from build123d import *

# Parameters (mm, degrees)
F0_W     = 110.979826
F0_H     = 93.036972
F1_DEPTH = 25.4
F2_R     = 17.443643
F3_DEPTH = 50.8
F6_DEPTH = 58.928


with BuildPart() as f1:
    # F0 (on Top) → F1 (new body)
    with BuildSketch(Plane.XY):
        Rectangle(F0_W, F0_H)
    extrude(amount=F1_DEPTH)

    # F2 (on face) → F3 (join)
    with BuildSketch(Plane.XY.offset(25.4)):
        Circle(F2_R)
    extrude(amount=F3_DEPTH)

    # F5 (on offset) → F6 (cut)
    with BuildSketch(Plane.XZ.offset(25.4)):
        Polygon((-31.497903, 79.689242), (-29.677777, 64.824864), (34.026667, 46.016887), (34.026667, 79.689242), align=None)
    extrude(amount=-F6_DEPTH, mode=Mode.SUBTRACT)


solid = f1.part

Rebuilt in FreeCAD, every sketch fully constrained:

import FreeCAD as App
import Part
import Sketcher
Q = App.Units.Quantity


def add_polygon(sketch, points):
    """Adds a closed chain of lines whose ends are joined by coincident constraints."""
    first, n = sketch.GeometryCount, len(points)
    for a, b in zip(points, points[1:] + points[:1]):
        sketch.addGeometry(Part.LineSegment(App.Vector(*a, 0), App.Vector(*b, 0)), False)
    for i in range(n):
        sketch.addConstraint(Sketcher.Constraint("Coincident", first + i, 2, first + (i + 1) % n, 1))

doc = App.newDocument("Part")
body = doc.addObject("PartDesign::Body", "Body")

# Sketch on XY plane
sketch1 = body.newObject("Sketcher::SketchObject", "Sketch")
sketch1.AttachmentSupport = (doc.getObject("XY_Plane"), [""])
sketch1.MapMode = "FlatFace"
add_polygon(sketch1, [(-55.489913, 46.518486), (-55.489913, -46.518486), (55.489913, -46.518486), (55.489913, 46.518486)])  # lines 0-3
sketch1.addConstraint([
    Sketcher.Constraint("Vertical", 0),
    Sketcher.Constraint("Horizontal", 1),
    Sketcher.Constraint("Vertical", 2),
    Sketcher.Constraint("Horizontal", 3),
    Sketcher.Constraint("Symmetric", 0, 2, 2, 2, -1, 1),
    Sketcher.Constraint("DistanceX", 1, 1, 1, 2, Q("110.979826 mm")),
    Sketcher.Constraint("DistanceY", 0, 2, 0, 1, Q("93.036972 mm")),
])
pad1 = body.newObject("PartDesign::Pad", "Pad")
pad1.Profile = sketch1
pad1.Length = Q("1 in")

# Sketch on XY plane
sketch2 = body.newObject("Sketcher::SketchObject", "Sketch001")
sketch2.AttachmentSupport = (doc.getObject("XY_Plane"), [""])
sketch2.MapMode = "FlatFace"
sketch2.AttachmentOffset = App.Placement(App.Vector(0, 0, 1 * 25.4), App.Rotation())
sketch2.addGeometry(Part.Circle(App.Vector(0, 0, 0), App.Vector(0, 0, 1), 17.443643), False)
sketch2.addConstraint([
    Sketcher.Constraint("Coincident", 0, 3, -1, 1),
    Sketcher.Constraint("Diameter", 0, Q("34.887286 mm")),
])
pad2 = body.newObject("PartDesign::Pad", "Pad001")
pad2.Profile = sketch2
pad2.Length = Q("2 in")

# Sketch on XZ plane
sketch3 = body.newObject("Sketcher::SketchObject", "Sketch002")
sketch3.AttachmentSupport = (doc.getObject("XZ_Plane"), [""])
sketch3.MapMode = "FlatFace"
sketch3.AttachmentOffset = App.Placement(App.Vector(0, 0, 1 * 25.4), App.Rotation())
add_polygon(sketch3, [(-31.497903, 79.689242), (-29.677777, 64.824864), (34.026667, 46.016887), (34.026667, 79.689242)])  # lines 0-3
sketch3.addConstraint([
    Sketcher.Constraint("Vertical", 2),
    Sketcher.Constraint("Horizontal", 3),
    Sketcher.Constraint("Distance", 0, Q("14.9754 mm")),
    Sketcher.Constraint("DistanceX", 3, 2, 3, 1, Q("65.52457 mm")),
    Sketcher.Constraint("Distance", 1, Q("66.422859 mm")),
    Sketcher.Constraint("DistanceY", 2, 1, 2, 2, Q("33.672355 mm")),
    Sketcher.Constraint("DistanceY", -1, 1, 2, 2, Q("79.689242 mm")),
    Sketcher.Constraint("DistanceX", 0, 2, -1, 1, Q("29.677777 mm")),
])
pocket1 = body.newObject("PartDesign::Pocket", "Pocket")
pocket1.Profile = sketch3
pocket1.Length = Q("2.32 in")

doc.recompute()
